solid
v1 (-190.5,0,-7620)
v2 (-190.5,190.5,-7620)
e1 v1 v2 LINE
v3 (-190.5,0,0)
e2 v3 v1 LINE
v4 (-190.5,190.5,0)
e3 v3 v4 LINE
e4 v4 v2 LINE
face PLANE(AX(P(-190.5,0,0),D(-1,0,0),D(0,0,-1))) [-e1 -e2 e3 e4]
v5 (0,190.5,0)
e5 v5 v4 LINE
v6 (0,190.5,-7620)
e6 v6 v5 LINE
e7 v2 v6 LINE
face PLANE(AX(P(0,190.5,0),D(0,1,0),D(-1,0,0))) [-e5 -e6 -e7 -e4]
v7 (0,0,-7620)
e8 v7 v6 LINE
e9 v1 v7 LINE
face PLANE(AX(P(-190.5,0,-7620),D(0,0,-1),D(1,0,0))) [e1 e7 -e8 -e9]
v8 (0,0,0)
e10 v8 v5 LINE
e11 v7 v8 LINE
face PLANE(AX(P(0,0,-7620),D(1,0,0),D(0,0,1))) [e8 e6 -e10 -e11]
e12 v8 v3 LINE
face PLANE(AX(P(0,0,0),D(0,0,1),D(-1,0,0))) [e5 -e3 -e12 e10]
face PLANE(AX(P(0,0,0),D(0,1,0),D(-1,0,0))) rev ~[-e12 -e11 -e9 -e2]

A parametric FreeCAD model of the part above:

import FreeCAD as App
import Part
import Sketcher
Q = App.Units.Quantity


def add_polygon(sketch, points):
    """Adds a closed chain of lines whose ends are joined by coincident constraints."""
    first, n = sketch.GeometryCount, len(points)
    for a, b in zip(points, points[1:] + points[:1]):
        sketch.addGeometry(Part.LineSegment(App.Vector(*a, 0), App.Vector(*b, 0)), False)
    for i in range(n):
        sketch.addConstraint(Sketcher.Constraint("Coincident", first + i, 2, first + (i + 1) % n, 1))

doc = App.newDocument("Part")
params = doc.addObject("Spreadsheet::Sheet", "Params")
for row, (alias, value) in enumerate([
    ("sketch1_height", "300 in"),
    ("sketch1_width", "7.5 in"),
    ("pad1_length", "7.5 in"),
], start=1):
    params.set(f"A{row}", alias)
    params.set(f"B{row}", "=" + value)
    params.setAlias(f"B{row}", alias)

body = doc.addObject("PartDesign::Body", "Body")

sketch1 = doc.addObject("Sketcher::SketchObject", "Sketch")
body.addObject(sketch1)
sketch1.AttachmentSupport = (doc.XZ_Plane, [""])
sketch1.MapMode = "FlatFace"
add_polygon(sketch1, [(-190.5, 0), (0, 0), (0, -7620), (-190.5, -7620)])
sketch1.addConstraint([
    Sketcher.Constraint("Horizontal", 0),
    Sketcher.Constraint("Vertical", 1),
    Sketcher.Constraint("Horizontal", 2),
    Sketcher.Constraint("Vertical", 3),
    Sketcher.Constraint("Coincident", 0, 2, -1, 1),
    Sketcher.Constraint("DistanceY", 1, 2, 1, 1, Q("300 in")),
    Sketcher.Constraint("DistanceX", 0, 1, 0, 2, Q("7.5 in")),
])
sketch1.setExpression("Constraints[9]", "Params.sketch1_height")
sketch1.setExpression("Constraints[10]", "Params.sketch1_width")
pad1 = doc.addObject("PartDesign::Pad", "Pad")
body.addObject(pad1)
pad1.Profile = sketch1
pad1.setExpression("Length", "Params.pad1_length")
pad1.Reversed = True

doc.recompute()
